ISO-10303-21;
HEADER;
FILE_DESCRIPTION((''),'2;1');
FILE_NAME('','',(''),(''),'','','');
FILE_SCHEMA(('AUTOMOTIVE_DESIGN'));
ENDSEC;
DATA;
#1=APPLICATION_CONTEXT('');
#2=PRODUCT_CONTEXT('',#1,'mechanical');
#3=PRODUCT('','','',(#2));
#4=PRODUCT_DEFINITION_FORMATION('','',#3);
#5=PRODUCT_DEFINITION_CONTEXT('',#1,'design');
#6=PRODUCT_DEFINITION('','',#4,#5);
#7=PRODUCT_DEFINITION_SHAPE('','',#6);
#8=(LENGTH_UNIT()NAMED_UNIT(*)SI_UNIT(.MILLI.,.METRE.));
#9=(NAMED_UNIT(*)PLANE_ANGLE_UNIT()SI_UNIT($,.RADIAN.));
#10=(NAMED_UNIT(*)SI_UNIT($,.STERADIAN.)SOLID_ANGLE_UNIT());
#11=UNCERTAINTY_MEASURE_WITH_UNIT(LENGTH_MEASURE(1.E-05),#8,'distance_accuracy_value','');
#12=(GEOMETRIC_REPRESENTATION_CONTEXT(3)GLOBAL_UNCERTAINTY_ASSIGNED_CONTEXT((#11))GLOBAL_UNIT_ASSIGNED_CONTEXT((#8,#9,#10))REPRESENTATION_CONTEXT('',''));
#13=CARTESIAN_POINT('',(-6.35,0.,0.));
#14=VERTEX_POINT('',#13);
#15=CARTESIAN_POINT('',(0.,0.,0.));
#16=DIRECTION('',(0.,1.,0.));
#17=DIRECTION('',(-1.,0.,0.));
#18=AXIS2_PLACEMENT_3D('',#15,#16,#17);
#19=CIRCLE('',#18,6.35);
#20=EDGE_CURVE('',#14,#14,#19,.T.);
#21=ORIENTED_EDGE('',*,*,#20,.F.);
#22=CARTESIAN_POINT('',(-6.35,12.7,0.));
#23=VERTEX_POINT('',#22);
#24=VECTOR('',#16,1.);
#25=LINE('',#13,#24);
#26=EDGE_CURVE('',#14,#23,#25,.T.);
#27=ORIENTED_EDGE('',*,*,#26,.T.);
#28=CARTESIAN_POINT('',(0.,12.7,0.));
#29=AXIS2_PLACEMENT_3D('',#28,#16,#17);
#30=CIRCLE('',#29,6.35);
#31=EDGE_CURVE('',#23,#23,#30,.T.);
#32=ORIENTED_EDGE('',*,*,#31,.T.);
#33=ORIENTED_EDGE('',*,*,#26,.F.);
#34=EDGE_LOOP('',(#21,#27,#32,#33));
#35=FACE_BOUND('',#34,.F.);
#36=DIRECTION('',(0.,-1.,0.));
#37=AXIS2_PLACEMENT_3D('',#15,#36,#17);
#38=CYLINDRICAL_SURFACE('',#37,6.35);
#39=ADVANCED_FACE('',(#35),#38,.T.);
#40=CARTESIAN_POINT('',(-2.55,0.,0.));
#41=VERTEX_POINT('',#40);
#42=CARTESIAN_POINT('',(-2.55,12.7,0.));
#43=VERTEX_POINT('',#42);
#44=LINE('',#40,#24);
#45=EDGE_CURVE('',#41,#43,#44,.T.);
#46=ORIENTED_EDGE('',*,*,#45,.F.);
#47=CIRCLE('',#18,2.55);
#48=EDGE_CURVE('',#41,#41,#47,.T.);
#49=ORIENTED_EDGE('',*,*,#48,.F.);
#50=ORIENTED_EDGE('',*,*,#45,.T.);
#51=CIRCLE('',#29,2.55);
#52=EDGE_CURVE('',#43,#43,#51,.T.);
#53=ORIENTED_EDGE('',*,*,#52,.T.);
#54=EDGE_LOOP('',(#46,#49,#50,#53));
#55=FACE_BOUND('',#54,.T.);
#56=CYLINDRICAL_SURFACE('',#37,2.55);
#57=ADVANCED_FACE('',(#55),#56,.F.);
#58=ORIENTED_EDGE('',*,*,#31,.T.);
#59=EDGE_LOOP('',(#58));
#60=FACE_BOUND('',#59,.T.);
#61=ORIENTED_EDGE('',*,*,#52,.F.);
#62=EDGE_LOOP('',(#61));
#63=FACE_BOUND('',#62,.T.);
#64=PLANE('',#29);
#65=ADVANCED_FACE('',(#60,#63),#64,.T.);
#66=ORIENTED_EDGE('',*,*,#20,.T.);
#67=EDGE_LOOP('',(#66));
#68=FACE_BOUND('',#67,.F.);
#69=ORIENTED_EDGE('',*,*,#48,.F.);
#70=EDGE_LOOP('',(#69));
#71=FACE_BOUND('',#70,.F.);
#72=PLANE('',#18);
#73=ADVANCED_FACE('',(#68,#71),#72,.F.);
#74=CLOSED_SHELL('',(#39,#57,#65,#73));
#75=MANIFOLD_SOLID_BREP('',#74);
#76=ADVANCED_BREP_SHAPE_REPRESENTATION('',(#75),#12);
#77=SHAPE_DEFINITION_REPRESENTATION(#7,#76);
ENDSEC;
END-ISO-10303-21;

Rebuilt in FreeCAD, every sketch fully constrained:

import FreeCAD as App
import Part
import Sketcher

V = App.Vector
Q = App.Units.Quantity

doc = App.newDocument("Part")
body = doc.addObject("PartDesign::Body", "Body")

sketch1 = body.newObject("Sketcher::SketchObject", "Sketch")
sketch1.AttachmentSupport = (doc.getObject("XZ_Plane"), [""])
sketch1.MapMode = "FlatFace"
sketch1.addGeometry(Part.Circle(V(0, 0, 0), V(0, 0, 1), 6.3), False)
sketch1.addGeometry(Part.Circle(V(0, 0, 0), V(0, 0, 1), 2.5), False)
sketch1.addConstraint(Sketcher.Constraint("Coincident", 0, 3, -1, 1))
sketch1.addConstraint(Sketcher.Constraint("Coincident", 1, 3, -1, 1))
sketch1.addConstraint(Sketcher.Constraint("Diameter", 0, Q("12.7 mm")))
sketch1.addConstraint(Sketcher.Constraint("Diameter", 1, Q("5.1 mm")))
pad1 = body.newObject("PartDesign::Pad", "Pad")
pad1.Profile = sketch1
pad1.Length = 12.7
pad1.Reversed = True

doc.recompute()
